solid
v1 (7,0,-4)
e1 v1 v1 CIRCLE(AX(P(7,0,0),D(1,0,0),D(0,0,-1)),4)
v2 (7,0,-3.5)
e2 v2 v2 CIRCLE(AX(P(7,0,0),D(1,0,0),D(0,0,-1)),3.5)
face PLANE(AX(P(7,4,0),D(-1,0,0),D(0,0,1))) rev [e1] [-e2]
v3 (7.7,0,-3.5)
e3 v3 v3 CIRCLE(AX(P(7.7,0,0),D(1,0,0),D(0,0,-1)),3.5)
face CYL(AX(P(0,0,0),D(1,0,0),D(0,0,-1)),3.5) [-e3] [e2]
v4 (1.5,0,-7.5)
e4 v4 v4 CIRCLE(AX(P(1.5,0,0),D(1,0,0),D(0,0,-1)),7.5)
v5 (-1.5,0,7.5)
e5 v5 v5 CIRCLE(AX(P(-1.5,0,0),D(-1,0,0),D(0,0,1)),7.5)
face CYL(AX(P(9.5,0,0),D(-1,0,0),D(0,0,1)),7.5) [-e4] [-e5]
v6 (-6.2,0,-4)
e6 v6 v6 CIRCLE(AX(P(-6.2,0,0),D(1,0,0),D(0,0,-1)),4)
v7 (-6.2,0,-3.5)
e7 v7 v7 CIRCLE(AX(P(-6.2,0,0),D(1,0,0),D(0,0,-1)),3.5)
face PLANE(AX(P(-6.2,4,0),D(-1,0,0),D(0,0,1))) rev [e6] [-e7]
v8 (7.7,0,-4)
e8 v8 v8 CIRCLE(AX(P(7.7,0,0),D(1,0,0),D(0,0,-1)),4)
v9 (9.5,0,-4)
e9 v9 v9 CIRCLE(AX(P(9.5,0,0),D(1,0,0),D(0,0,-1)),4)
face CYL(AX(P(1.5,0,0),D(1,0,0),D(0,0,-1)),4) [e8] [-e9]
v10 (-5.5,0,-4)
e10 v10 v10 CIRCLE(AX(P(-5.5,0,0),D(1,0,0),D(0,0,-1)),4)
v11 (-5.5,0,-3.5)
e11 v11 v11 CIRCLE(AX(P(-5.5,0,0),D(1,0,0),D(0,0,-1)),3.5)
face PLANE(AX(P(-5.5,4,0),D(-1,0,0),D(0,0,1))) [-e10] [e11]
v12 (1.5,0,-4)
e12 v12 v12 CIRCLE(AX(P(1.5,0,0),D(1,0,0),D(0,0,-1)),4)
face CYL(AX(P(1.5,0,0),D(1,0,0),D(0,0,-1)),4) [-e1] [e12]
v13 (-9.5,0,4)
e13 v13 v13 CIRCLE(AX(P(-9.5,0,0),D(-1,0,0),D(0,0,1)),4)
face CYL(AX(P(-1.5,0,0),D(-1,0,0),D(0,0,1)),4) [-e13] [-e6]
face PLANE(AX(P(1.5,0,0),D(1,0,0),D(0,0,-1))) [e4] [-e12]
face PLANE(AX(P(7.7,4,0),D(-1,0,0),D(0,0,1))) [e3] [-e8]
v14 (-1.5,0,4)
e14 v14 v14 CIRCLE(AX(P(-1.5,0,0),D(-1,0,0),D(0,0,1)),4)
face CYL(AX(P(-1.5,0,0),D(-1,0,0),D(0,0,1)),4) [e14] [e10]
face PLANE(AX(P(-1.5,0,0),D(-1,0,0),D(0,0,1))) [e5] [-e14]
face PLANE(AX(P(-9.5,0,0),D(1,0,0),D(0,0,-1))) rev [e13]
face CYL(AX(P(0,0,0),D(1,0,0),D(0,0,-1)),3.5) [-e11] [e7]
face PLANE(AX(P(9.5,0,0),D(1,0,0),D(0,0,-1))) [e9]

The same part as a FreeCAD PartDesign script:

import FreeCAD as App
import Part
import Sketcher
from FreeCAD import Vector
Q = App.Units.Quantity

doc = App.newDocument("Part")
body = doc.addObject("PartDesign::Body", "Body")

sketch1 = body.newObject("Sketcher::SketchObject", "Sketch")
sketch1.AttachmentSupport = (doc.getObject("YZ_Plane"), [""])
sketch1.MapMode = "FlatFace"
sketch1.addGeometry(Part.Circle(Vector(0, 0, 0), Vector(0, 0, 1), 8), False)
sketch1.addConstraint(Sketcher.Constraint("Coincident", 0, 3, -1, 1))
sketch1.addConstraint(Sketcher.Constraint("Diameter", 0, Q("15 mm")))
pad1 = body.newObject("PartDesign::Pad", "Pad")
pad1.Profile = sketch1
pad1.Length = 19
pad1.Midplane = True

sketch2 = body.newObject("Sketcher::SketchObject", "Sketch001")
sketch2.AttachmentSupport = (doc.getObject("YZ_Plane"), [""])
sketch2.MapMode = "FlatFace"
sketch2.AttachmentOffset = App.Placement(Vector(0, 0, 9.5), App.Rotation())
sketch2.addGeometry(Part.Circle(Vector(0, 0, 0), Vector(0, 0, 1), 7.5), False)
sketch2.addGeometry(Part.Circle(Vector(0, 0, 0), Vector(0, 0, 1), 4), False)
sketch2.addConstraint(Sketcher.Constraint("Coincident", 0, 3, -1, 1))
sketch2.addConstraint(Sketcher.Constraint("Coincident", 1, 3, -1, 1))
sketch2.addConstraint(Sketcher.Constraint("Diameter", 0, Q("15 mm")))
sketch2.addConstraint(Sketcher.Constraint("Diameter", 1, Q("8 mm")))
pocket1 = body.newObject("PartDesign::Pocket", "Pocket")
pocket1.Profile = sketch2
pocket1.Length = 8

sketch3 = body.newObject("Sketcher::SketchObject", "Sketch002")
sketch3.AttachmentSupport = (doc.getObject("YZ_Plane"), [""])
sketch3.MapMode = "FlatFace"
sketch3.AttachmentOffset = App.Placement(Vector(0, 0, -1.5), App.Rotation())
sketch3.addGeometry(Part.Circle(Vector(0, 0, 0), Vector(0, 0, 1), 7.5), False)
sketch3.addGeometry(Part.Circle(Vector(0, 0, 0), Vector(0, 0, 1), 4), False)
sketch3.addConstraint(Sketcher.Constraint("Coincident", 0, 3, -1, 1))
sketch3.addConstraint(Sketcher.Constraint("Coincident", 1, 3, -1, 1))
sketch3.addConstraint(Sketcher.Constraint("Diameter", 0, Q("15 mm")))
sketch3.addConstraint(Sketcher.Constraint("Diameter", 1, Q("8 mm")))
pocket2 = body.newObject("PartDesign::Pocket", "Pocket001")
pocket2.Profile = sketch3
pocket2.Length = 8

sketch4 = body.newObject("Sketcher::SketchObject", "Sketch003")
sketch4.AttachmentSupport = (doc.getObject("XY_Plane"), [""])
sketch4.MapMode = "FlatFace"
sketch4.addGeometry(Part.LineSegment(Vector(7, 4, 0), Vector(7, 3.5, 0)), False)
sketch4.addGeometry(Part.LineSegment(Vector(7, 3.5, 0), Vector(7.7, 3.5, 0)), False)
sketch4.addGeometry(Part.LineSegment(Vector(7.7, 3.5, 0), Vector(7.7, 4, 0)), False)
sketch4.addGeometry(Part.LineSegment(Vector(7.7, 4, 0), Vector(7, 4, 0)), False)
sketch4.addGeometry(Part.LineSegment(Vector(-6.2, 4, 0), Vector(-6.2, 3.5, 0)), False)
sketch4.addGeometry(Part.LineSegment(Vector(-6.2, 3.5, 0), Vector(-5.5, 3.5, 0)), False)
sketch4.addGeometry(Part.LineSegment(Vector(-5.5, 3.5, 0), Vector(-5.5, 4, 0)), False)
sketch4.addGeometry(Part.LineSegment(Vector(-5.5, 4, 0), Vector(-6.2, 4, 0)), False)
sketch4.addConstraint(Sketcher.Constraint("Coincident", 0, 2, 1, 1))
sketch4.addConstraint(Sketcher.Constraint("Coincident", 1, 2, 2, 1))
sketch4.addConstraint(Sketcher.Constraint("Coincident", 2, 2, 3, 1))
sketch4.addConstraint(Sketcher.Constraint("Coincident", 3, 2, 0, 1))
sketch4.addConstraint(Sketcher.Constraint("Coincident", 4, 2, 5, 1))
sketch4.addConstraint(Sketcher.Constraint("Coincident", 5, 2, 6, 1))
sketch4.addConstraint(Sketcher.Constraint("Coincident", 6, 2, 7, 1))
sketch4.addConstraint(Sketcher.Constraint("Coincident", 7, 2, 4, 1))
sketch4.addConstraint(Sketcher.Constraint("Vertical", 0))
sketch4.addConstraint(Sketcher.Constraint("Horizontal", 1))
sketch4.addConstraint(Sketcher.Constraint("Vertical", 2))
sketch4.addConstraint(Sketcher.Constraint("Horizontal", 3))
sketch4.addConstraint(Sketcher.Constraint("Vertical", 4))
sketch4.addConstraint(Sketcher.Constraint("Horizontal", 5))
sketch4.addConstraint(Sketcher.Constraint("Vertical", 6))
sketch4.addConstraint(Sketcher.Constraint("Horizontal", 7))
sketch4.addConstraint(Sketcher.Constraint("Horizontal", 1, 2, 4, 2))
sketch4.addConstraint(Sketcher.Constraint("Horizontal", 3, 2, 6, 2))
sketch4.addConstraint(Sketcher.Constraint("Equal", 3, 5))
sketch4.addConstraint(Sketcher.Constraint("DistanceX", 1, 1, 1, 2, Q("0.7 mm")))
sketch4.addConstraint(Sketcher.Constraint("DistanceY", 0, 2, 0, 1, Q("0.5 mm")))
sketch4.addConstraint(Sketcher.Constraint("DistanceX", -1, 1, 0, 2, Q("7 mm")))
sketch4.addConstraint(Sketcher.Constraint("DistanceY", -1, 1, 2, 2, Q("4 mm")))
sketch4.addConstraint(Sketcher.Constraint("DistanceX", 4, 2, -1, 1, Q("6.2 mm")))
groove = body.newObject("PartDesign::Groove", "Groove")
groove.Profile = sketch4
groove.ReferenceAxis = (sketch4, ["H_Axis"])
groove.Angle = 360

doc.recompute()
